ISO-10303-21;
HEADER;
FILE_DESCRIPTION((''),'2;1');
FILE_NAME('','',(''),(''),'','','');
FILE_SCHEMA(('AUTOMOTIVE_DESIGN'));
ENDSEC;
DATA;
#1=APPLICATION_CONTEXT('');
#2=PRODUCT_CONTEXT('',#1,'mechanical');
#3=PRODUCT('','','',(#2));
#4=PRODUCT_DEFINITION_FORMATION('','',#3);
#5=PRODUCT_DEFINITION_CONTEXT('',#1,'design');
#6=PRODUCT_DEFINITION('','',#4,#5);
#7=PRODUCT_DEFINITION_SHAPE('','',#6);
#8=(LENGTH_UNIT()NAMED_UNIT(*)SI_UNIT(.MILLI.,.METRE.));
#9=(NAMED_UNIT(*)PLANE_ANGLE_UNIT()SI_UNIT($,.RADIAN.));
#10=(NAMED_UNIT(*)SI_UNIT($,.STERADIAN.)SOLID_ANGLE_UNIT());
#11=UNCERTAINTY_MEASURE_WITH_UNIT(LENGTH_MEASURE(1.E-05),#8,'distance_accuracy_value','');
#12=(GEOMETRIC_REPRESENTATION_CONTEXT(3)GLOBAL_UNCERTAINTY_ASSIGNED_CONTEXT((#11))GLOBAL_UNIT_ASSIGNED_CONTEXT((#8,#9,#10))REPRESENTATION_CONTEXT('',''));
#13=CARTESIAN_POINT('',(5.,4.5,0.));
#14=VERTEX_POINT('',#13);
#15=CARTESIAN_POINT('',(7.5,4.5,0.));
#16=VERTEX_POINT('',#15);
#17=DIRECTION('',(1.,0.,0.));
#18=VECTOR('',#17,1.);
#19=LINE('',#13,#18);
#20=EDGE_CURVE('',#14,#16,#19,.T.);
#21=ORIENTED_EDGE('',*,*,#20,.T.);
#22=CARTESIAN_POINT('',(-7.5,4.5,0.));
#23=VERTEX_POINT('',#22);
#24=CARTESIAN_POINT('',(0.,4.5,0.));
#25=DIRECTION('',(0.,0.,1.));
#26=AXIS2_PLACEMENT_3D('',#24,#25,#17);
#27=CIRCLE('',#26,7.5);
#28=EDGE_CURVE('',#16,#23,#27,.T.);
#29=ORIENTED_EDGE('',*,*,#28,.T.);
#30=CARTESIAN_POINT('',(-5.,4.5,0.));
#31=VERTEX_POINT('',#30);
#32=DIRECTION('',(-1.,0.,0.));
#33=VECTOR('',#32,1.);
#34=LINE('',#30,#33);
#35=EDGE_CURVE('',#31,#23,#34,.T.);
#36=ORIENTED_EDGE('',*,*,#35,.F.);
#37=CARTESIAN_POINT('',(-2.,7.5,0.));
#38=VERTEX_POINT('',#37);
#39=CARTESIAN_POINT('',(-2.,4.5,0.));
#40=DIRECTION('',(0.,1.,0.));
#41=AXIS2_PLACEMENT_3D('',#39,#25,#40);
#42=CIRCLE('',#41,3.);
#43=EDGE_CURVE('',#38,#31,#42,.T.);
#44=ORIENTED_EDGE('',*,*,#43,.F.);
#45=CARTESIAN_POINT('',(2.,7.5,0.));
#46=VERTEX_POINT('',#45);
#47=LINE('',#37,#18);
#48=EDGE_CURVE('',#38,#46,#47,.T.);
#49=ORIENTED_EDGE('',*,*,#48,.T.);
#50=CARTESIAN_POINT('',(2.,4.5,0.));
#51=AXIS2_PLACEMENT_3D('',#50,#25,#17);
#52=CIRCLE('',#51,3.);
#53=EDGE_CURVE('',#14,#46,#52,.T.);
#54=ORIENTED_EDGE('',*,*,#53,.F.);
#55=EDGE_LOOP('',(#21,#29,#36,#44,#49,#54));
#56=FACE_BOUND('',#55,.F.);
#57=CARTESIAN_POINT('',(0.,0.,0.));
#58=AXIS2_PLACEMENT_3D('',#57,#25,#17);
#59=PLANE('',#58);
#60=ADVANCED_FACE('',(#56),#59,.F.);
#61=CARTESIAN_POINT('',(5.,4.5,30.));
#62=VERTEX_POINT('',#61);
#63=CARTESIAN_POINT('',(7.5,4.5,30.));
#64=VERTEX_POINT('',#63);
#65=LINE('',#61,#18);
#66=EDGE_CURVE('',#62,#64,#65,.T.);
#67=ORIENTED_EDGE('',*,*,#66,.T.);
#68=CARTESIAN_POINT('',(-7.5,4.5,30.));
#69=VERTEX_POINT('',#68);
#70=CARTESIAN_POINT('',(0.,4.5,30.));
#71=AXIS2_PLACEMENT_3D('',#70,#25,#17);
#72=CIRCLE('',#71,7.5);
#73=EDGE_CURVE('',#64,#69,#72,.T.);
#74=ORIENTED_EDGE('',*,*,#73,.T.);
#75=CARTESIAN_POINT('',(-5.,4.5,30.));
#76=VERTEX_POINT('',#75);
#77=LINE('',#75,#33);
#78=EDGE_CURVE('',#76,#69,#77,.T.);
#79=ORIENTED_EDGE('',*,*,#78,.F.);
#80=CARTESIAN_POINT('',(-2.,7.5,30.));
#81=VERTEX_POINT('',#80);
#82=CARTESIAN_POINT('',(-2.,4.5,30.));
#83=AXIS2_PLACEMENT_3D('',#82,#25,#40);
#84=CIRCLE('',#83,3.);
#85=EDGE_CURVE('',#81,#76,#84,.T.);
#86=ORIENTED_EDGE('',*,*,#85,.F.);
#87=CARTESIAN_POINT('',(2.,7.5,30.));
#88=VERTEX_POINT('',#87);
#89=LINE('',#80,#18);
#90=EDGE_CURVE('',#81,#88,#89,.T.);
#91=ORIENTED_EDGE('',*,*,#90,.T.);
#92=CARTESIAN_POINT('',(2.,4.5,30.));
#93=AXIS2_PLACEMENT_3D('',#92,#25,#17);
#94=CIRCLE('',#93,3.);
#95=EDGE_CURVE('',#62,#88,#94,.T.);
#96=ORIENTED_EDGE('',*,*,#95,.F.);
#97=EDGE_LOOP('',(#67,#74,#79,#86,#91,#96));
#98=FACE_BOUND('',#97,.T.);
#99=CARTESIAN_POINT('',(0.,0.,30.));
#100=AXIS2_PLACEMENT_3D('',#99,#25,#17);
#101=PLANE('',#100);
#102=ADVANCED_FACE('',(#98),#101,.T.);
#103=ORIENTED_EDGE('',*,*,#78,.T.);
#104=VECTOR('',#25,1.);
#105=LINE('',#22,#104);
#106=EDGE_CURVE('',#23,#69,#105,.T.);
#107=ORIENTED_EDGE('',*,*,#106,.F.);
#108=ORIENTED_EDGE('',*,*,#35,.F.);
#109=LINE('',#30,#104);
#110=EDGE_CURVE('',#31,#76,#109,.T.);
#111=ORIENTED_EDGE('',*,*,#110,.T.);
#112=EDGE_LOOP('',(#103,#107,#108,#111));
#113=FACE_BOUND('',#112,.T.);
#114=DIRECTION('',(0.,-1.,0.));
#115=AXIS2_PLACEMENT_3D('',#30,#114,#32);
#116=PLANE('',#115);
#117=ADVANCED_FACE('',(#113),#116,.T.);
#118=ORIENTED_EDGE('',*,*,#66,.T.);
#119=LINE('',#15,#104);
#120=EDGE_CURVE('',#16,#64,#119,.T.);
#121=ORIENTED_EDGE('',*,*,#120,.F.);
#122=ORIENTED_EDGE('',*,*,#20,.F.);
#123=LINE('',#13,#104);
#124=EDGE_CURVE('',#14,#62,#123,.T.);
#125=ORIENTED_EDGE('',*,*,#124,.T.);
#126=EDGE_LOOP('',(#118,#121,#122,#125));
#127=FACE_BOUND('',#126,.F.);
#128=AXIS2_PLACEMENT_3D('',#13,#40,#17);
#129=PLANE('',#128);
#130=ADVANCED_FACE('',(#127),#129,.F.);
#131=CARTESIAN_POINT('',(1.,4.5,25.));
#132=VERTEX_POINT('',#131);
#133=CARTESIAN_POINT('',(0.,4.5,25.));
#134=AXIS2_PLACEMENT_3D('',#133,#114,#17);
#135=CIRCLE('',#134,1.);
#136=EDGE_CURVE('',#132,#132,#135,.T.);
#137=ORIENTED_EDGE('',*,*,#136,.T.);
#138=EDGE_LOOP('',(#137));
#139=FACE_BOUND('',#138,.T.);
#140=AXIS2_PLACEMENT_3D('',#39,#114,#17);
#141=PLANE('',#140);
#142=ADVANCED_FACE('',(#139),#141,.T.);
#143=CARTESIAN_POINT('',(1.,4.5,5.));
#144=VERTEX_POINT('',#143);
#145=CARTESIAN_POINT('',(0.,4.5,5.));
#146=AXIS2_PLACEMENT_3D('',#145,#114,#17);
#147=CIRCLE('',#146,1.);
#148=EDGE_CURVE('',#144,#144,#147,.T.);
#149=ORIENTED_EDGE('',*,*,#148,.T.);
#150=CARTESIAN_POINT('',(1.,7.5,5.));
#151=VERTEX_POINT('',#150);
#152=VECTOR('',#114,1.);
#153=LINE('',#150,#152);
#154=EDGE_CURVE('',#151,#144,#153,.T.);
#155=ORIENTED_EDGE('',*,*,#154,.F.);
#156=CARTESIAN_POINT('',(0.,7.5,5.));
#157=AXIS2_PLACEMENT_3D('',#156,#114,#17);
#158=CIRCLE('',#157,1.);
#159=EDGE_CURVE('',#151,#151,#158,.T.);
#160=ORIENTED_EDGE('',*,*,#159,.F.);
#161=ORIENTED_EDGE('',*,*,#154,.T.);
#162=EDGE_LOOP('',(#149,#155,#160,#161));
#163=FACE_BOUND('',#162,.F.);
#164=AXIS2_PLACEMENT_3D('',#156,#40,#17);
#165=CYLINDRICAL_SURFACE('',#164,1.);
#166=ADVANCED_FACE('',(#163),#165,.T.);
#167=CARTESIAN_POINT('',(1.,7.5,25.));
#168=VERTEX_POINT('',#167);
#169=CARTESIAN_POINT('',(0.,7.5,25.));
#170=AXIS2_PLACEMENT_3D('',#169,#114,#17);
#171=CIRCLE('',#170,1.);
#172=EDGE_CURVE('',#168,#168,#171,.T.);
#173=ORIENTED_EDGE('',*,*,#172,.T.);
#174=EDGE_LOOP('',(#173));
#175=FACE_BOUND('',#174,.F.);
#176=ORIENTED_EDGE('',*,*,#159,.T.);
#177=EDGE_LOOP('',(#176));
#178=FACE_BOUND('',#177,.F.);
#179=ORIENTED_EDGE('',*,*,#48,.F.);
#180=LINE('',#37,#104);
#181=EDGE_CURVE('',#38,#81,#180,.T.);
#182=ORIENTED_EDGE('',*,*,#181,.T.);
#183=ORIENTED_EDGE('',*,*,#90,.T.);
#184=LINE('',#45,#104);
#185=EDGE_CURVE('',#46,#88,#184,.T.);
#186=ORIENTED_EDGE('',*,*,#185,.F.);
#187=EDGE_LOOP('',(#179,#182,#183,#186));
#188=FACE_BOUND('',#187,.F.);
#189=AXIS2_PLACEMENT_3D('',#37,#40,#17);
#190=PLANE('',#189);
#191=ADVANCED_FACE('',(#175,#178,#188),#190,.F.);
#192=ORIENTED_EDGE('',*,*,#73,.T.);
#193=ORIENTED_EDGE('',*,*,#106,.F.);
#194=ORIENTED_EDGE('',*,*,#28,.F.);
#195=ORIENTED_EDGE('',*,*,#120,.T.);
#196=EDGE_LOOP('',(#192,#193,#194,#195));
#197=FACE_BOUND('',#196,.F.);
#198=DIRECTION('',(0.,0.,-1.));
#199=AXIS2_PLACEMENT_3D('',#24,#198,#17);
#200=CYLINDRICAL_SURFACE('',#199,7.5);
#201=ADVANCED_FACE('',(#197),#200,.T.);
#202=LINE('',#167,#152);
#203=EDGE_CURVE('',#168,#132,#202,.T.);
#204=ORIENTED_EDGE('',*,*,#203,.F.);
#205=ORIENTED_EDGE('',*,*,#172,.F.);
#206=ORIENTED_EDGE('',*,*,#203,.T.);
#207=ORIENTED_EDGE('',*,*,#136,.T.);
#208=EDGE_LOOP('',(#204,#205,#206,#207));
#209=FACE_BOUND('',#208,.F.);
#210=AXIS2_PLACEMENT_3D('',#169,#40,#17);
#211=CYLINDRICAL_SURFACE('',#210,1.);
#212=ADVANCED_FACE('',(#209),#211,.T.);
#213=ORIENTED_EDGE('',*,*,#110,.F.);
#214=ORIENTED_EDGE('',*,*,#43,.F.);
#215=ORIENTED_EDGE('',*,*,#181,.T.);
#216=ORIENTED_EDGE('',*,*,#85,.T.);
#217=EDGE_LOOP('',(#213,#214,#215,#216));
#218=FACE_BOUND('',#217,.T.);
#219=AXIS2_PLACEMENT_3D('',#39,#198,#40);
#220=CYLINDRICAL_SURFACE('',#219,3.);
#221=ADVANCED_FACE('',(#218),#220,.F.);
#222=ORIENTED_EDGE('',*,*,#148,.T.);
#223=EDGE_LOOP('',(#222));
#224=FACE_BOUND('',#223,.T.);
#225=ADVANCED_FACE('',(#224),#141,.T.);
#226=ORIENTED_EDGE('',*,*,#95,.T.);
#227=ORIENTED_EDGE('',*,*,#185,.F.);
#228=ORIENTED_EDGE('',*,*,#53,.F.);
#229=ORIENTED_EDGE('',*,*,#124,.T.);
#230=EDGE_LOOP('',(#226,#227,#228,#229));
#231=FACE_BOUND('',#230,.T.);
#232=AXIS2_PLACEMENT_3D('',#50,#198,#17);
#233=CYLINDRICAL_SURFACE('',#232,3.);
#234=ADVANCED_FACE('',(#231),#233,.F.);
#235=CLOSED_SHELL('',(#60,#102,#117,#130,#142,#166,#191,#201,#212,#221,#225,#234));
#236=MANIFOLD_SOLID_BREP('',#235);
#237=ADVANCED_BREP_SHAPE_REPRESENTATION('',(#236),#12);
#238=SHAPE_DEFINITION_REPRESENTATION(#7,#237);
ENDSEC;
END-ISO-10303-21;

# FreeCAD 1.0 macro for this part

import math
import FreeCAD as App
import Part
import Sketcher

V = App.Vector
Q = App.Units.Quantity

doc = App.newDocument("Part")
params = doc.addObject("Spreadsheet::Sheet", "Params")
for row, (alias, value) in enumerate([
    ("sketch1_radius", "3 mm"),
    ("sketch1_radius2", "7.5 mm"),
    ("sketch1_width", "4 mm"),
    ("pad1_length", "30 mm"),
    ("sketch2_diameter", "2 mm"),
    ("pad2_length", "3 mm"),
], start=1):
    params.set(f"A{row}", alias)
    params.set(f"B{row}", "=" + value)
    params.setAlias(f"B{row}", alias)

body = doc.addObject("PartDesign::Body", "Body")

sketch1 = body.newObject("Sketcher::SketchObject", "Sketch")
sketch1.AttachmentSupport = (doc.getObject("XY_Plane"), [""])
sketch1.MapMode = "FlatFace"
sketch1.addGeometry(Part.ArcOfCircle(Part.Circle(V(2, 4.5, 0), V(0, 0, 1), 3), math.radians(0), math.radians(90)), False)
sketch1.addGeometry(Part.LineSegment(V(5, 4.5, 0), V(7.5, 4.5, 0)), False)
sketch1.addGeometry(Part.ArcOfCircle(Part.Circle(V(0, 4.5, 0), V(0, 0, 1), 7.5), math.radians(0), math.radians(180)), False)
sketch1.addGeometry(Part.LineSegment(V(-7.5, 4.5, 0), V(-5, 4.5, 0)), False)
sketch1.addGeometry(Part.ArcOfCircle(Part.Circle(V(-2, 4.5, 0), V(0, 0, 1), 3), math.radians(90), math.radians(180)), False)
sketch1.addGeometry(Part.LineSegment(V(-2, 7.5, 0), V(2, 7.5, 0)), False)
sketch1.addConstraint(Sketcher.Constraint("Coincident", 0, 1, 1, 1))
sketch1.addConstraint(Sketcher.Constraint("Coincident", 1, 2, 2, 1))
sketch1.addConstraint(Sketcher.Constraint("Coincident", 2, 2, 3, 1))
sketch1.addConstraint(Sketcher.Constraint("Coincident", 3, 2, 4, 2))
sketch1.addConstraint(Sketcher.Constraint("Tangent", 4, 1, 5, 1))
sketch1.addConstraint(Sketcher.Constraint("Tangent", 5, 2, 0, 2))
sketch1.addConstraint(Sketcher.Constraint("Horizontal", 1))
sketch1.addConstraint(Sketcher.Constraint("Horizontal", 3))
sketch1.addConstraint(Sketcher.Constraint("Horizontal", 5))
sketch1.addConstraint(Sketcher.Constraint("Equal", 0, 4))
sketch1.addConstraint(Sketcher.Constraint("Symmetric", 1, 2, 2, 2, -2))
sketch1.addConstraint(Sketcher.Constraint("Horizontal", 0, 3, 2, 3))
sketch1.addConstraint(Sketcher.Constraint("Horizontal", 4, 3, 0, 1))
sketch1.addConstraint(Sketcher.Constraint("Equal", 1, 3))
sketch1.addConstraint(Sketcher.Constraint("Radius", 0, Q("3 mm")))
sketch1.addConstraint(Sketcher.Constraint("Radius", 2, Q("7.5 mm")))
sketch1.addConstraint(Sketcher.Constraint("DistanceX", 5, 1, 5, 2, Q("4 mm")))
sketch1.addConstraint(Sketcher.Constraint("DistanceY", -1, 1, 0, 3, Q("4.5 mm")))
sketch1.setExpression("Constraints[14]", "Params.sketch1_radius")
sketch1.setExpression("Constraints[15]", "Params.sketch1_radius2")
sketch1.setExpression("Constraints[16]", "Params.sketch1_width")
pad1 = body.newObject("PartDesign::Pad", "Pad")
pad1.Profile = sketch1
pad1.setExpression("Length", "Params.pad1_length")

sketch2 = body.newObject("Sketcher::SketchObject", "Sketch001")
sketch2.AttachmentSupport = (doc.getObject("XZ_Plane"), [""])
sketch2.MapMode = "FlatFace"
sketch2.AttachmentOffset = App.Placement(V(0, 0, -7.5), App.Rotation())
sketch2.addGeometry(Part.Circle(V(0, 25, 0), V(0, 0, 1), 1), False)
sketch2.addGeometry(Part.Circle(V(0, 5, 0), V(0, 0, 1), 1), False)
sketch2.addConstraint(Sketcher.Constraint("Equal", 0, 1))
sketch2.addConstraint(Sketcher.Constraint("PointOnObject", 0, 3, -2))
sketch2.addConstraint(Sketcher.Constraint("PointOnObject", 1, 3, -2))
sketch2.addConstraint(Sketcher.Constraint("Diameter", 0, Q("2 mm")))
sketch2.addConstraint(Sketcher.Constraint("DistanceY", -1, 1, 1, 3, Q("5 mm")))
sketch2.addConstraint(Sketcher.Constraint("DistanceY", -1, 1, 0, 3, Q("25 mm")))
sketch2.setExpression("Constraints[3]", "Params.sketch2_diameter")
pad2 = body.newObject("PartDesign::Pad", "Pad001")
pad2.Profile = sketch2
pad2.setExpression("Length", "Params.pad2_length")

doc.recompute()
